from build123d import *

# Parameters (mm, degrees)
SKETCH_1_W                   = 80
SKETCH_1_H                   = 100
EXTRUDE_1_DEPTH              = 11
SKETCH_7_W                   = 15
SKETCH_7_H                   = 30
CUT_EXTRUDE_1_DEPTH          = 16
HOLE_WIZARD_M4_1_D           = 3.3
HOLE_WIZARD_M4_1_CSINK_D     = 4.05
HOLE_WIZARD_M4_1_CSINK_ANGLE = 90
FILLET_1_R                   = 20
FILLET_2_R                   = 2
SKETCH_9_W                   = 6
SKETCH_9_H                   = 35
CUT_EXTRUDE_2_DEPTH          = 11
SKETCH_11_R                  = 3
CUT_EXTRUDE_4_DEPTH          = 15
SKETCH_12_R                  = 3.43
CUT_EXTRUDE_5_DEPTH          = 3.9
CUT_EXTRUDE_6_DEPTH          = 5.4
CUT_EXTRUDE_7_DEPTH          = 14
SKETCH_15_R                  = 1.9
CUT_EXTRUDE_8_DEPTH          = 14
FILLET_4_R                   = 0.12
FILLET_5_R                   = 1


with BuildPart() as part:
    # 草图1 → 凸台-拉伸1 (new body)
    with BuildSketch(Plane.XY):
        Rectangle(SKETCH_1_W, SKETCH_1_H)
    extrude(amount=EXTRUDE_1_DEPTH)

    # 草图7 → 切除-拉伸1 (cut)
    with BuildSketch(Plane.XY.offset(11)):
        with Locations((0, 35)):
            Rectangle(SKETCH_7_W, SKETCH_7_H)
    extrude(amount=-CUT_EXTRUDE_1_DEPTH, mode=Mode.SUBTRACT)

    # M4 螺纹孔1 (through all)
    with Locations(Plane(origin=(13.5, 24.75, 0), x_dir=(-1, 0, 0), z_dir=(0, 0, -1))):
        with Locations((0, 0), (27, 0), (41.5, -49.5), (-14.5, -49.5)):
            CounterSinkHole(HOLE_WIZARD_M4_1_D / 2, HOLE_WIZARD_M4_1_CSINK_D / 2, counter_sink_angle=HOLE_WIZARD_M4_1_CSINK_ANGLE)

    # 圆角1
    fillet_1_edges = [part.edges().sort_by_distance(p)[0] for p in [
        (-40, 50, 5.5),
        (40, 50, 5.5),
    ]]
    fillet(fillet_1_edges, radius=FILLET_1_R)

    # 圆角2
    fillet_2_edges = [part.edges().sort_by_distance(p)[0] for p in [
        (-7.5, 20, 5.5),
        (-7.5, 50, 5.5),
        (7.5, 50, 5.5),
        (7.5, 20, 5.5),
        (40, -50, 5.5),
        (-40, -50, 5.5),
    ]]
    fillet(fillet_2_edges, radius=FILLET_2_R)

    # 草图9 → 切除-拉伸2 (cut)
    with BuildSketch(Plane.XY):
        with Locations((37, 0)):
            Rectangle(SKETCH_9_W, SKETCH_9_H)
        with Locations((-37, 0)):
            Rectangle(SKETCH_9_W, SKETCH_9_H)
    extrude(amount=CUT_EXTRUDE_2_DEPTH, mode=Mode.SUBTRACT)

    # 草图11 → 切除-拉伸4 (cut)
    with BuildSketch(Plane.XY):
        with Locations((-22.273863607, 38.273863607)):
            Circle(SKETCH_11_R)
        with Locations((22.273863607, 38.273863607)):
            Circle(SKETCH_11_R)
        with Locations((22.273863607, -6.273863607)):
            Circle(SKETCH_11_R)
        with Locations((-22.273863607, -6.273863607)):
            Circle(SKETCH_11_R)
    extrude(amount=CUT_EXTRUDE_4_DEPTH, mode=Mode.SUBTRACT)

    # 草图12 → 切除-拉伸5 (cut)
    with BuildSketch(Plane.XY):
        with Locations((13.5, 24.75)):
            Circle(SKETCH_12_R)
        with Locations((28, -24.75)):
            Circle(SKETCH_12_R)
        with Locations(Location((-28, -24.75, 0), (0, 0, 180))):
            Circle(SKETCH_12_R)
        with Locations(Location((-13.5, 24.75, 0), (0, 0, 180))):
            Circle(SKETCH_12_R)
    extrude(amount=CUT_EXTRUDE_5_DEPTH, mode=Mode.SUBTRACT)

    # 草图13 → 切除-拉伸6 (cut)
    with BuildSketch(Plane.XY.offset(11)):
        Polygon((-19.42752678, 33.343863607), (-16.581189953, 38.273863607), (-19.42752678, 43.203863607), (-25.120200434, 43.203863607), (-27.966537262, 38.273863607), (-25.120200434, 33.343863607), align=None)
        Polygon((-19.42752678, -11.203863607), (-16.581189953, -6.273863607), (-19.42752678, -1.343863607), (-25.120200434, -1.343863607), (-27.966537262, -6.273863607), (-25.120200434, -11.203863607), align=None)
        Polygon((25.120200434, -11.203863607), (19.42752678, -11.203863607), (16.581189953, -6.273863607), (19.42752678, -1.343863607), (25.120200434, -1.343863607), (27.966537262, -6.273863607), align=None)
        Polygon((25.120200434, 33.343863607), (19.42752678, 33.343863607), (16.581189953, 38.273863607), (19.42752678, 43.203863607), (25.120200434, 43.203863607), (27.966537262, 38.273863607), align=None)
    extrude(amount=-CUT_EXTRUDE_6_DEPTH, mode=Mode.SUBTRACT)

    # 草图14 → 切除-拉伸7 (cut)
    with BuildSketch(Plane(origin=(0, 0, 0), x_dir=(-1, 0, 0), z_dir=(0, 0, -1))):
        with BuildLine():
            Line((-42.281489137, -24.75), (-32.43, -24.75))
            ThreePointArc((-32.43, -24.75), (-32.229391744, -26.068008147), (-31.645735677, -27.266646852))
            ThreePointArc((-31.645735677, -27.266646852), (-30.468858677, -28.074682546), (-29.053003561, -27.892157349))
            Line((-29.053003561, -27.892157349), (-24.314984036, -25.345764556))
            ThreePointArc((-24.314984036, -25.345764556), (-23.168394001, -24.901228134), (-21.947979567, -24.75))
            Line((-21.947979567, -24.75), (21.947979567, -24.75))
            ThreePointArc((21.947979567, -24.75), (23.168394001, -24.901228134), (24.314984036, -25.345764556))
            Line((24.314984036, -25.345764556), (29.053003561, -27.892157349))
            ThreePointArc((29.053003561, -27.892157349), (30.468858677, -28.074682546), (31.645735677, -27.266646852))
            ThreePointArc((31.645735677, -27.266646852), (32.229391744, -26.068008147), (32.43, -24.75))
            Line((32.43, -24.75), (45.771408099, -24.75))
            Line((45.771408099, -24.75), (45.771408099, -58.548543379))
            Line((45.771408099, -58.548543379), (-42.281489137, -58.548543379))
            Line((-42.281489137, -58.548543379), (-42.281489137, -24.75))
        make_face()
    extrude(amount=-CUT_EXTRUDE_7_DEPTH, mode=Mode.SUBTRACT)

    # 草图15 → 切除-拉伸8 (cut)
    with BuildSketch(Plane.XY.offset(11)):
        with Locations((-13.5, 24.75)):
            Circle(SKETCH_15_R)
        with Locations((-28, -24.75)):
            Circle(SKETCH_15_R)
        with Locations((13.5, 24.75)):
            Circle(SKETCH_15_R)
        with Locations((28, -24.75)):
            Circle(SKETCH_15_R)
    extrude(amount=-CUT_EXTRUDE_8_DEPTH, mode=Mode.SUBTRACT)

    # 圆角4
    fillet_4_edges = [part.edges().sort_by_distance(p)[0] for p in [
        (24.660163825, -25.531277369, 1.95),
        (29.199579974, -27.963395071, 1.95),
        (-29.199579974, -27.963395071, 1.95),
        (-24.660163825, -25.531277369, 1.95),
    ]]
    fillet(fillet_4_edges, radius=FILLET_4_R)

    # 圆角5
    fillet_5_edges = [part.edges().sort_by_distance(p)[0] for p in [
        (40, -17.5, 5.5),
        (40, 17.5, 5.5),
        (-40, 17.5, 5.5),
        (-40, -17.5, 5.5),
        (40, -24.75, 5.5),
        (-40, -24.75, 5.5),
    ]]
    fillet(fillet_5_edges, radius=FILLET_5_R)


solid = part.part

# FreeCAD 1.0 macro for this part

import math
import FreeCAD as App
import Part
import Sketcher
Q = App.Units.Quantity


def edges_at(feature, points):
    """Names of the edges that pass closest to the given points."""
    edges = feature.Shape.Edges
    near = lambda p: min(range(len(edges)), key=lambda i: edges[i].distToShape(Part.Vertex(*p))[0])
    return sorted({f"Edge{near(p) + 1}" for p in points})

doc = App.newDocument("Part")
body = doc.addObject("PartDesign::Body", "Body")

sketch1 = doc.addObject("Sketcher::SketchObject", "Sketch")
body.addObject(sketch1)
sketch1.AttachmentSupport = (doc.XY_Plane, [""])
sketch1.MapMode = "FlatFace"
sketch1.addGeometry(Part.LineSegment(App.Vector(-40, 50, 0), App.Vector(-40, -50, 0)), False)
sketch1.addGeometry(Part.LineSegment(App.Vector(-40, -50, 0), App.Vector(40, -50, 0)), False)
sketch1.addGeometry(Part.LineSegment(App.Vector(40, -50, 0), App.Vector(40, 50, 0)), False)
sketch1.addGeometry(Part.LineSegment(App.Vector(40, 50, 0), App.Vector(-40, 50, 0)), False)
sketch1.addConstraint(Sketcher.Constraint("Coincident", 0, 2, 1, 1))
sketch1.addConstraint(Sketcher.Constraint("Coincident", 1, 2, 2, 1))
sketch1.addConstraint(Sketcher.Constraint("Coincident", 2, 2, 3, 1))
sketch1.addConstraint(Sketcher.Constraint("Coincident", 3, 2, 0, 1))
sketch1.addConstraint(Sketcher.Constraint("Vertical", 0))
sketch1.addConstraint(Sketcher.Constraint("Horizontal", 1))
sketch1.addConstraint(Sketcher.Constraint("Vertical", 2))
sketch1.addConstraint(Sketcher.Constraint("Horizontal", 3))
sketch1.addConstraint(Sketcher.Constraint("Symmetric", 0, 2, 2, 2, -1, 1))
sketch1.addConstraint(Sketcher.Constraint("DistanceX", 1, 1, 1, 2, 80.0))
sketch1.addConstraint(Sketcher.Constraint("DistanceY", 0, 2, 0, 1, 100.0))
pad1 = doc.addObject("PartDesign::Pad", "Pad")
body.addObject(pad1)
pad1.Profile = sketch1
pad1.Length = 11

sketch2 = doc.addObject("Sketcher::SketchObject", "Sketch001")
body.addObject(sketch2)
sketch2.AttachmentSupport = (doc.XY_Plane, [""])
sketch2.MapMode = "FlatFace"
sketch2.AttachmentOffset = App.Placement(App.Vector(0, 0, 11), App.Rotation())
sketch2.addGeometry(Part.LineSegment(App.Vector(-8, 50, 0), App.Vector(-8, 20, 0)), False)
sketch2.addGeometry(Part.LineSegment(App.Vector(-8, 20, 0), App.Vector(8, 20, 0)), False)
sketch2.addGeometry(Part.LineSegment(App.Vector(8, 20, 0), App.Vector(8, 50, 0)), False)
sketch2.addGeometry(Part.LineSegment(App.Vector(8, 50, 0), App.Vector(-8, 50, 0)), False)
sketch2.addConstraint(Sketcher.Constraint("Coincident", 0, 2, 1, 1))
sketch2.addConstraint(Sketcher.Constraint("Coincident", 1, 2, 2, 1))
sketch2.addConstraint(Sketcher.Constraint("Coincident", 2, 2, 3, 1))
sketch2.addConstraint(Sketcher.Constraint("Coincident", 3, 2, 0, 1))
sketch2.addConstraint(Sketcher.Constraint("Vertical", 0))
sketch2.addConstraint(Sketcher.Constraint("Horizontal", 1))
sketch2.addConstraint(Sketcher.Constraint("Vertical", 2))
sketch2.addConstraint(Sketcher.Constraint("Horizontal", 3))
sketch2.addConstraint(Sketcher.Constraint("DistanceX", 1, 1, 1, 2, 15.0))
sketch2.addConstraint(Sketcher.Constraint("DistanceY", 0, 2, 0, 1, 30.0))
sketch2.addConstraint(Sketcher.Constraint("DistanceY", -1, 1, 0, 2, 20.0))
sketch2.addConstraint(Sketcher.Constraint("DistanceX", 0, 2, -1, 1, 7.5))
pocket1 = doc.addObject("PartDesign::Pocket", "Pocket")
body.addObject(pocket1)
pocket1.Profile = sketch2
pocket1.Length = 16

sketch3 = doc.addObject("Sketcher::SketchObject", "Sketch002")
body.addObject(sketch3)
sketch3.AttachmentSupport = (doc.XY_Plane, [""])
sketch3.MapMode = "FlatFace"
sketch3.addGeometry(Part.Circle(App.Vector(13.5, 24.8, 0), App.Vector(0, 0, 1), 1.6), False)
sketch3.addGeometry(Part.Circle(App.Vector(-13.5, 24.8, 0), App.Vector(0, 0, 1), 1.6), False)
sketch3.addGeometry(Part.Circle(App.Vector(-28, -24.8, 0), App.Vector(0, 0, 1), 1.6), False)
sketch3.addGeometry(Part.Circle(App.Vector(28, -24.8, 0), App.Vector(0, 0, 1), 1.6), False)
sketch3.addConstraint(Sketcher.Constraint("Equal", 0, 1))
sketch3.addConstraint(Sketcher.Constraint("Equal", 1, 2))
sketch3.addConstraint(Sketcher.Constraint("Equal", 2, 3))
sketch3.addConstraint(Sketcher.Constraint("Symmetric", 0, 3, 1, 3, -2))
sketch3.addConstraint(Sketcher.Constraint("Symmetric", 2, 3, 3, 3, -2))
sketch3.addConstraint(Sketcher.Constraint("Diameter", 0, 3.3))
sketch3.addConstraint(Sketcher.Constraint("DistanceX", 2, 3, -1, 1, 28.0))
sketch3.addConstraint(Sketcher.Constraint("DistanceX", 1, 3, 0, 3, 27.0))
sketch3.addConstraint(Sketcher.Constraint("DistanceY", 2, 3, 1, 3, 49.5))
sketch3.addConstraint(Sketcher.Constraint("DistanceY", -1, 1, 0, 3, 24.75))
doc.recompute()
hole = doc.addObject("PartDesign::Hole", "Hole")
body.addObject(hole)
hole.Profile = sketch3
hole.ThreadType = "None"
hole.Diameter = 3.3
hole.DepthType = "ThroughAll"
hole.HoleCutType = "Countersink"
hole.HoleCutDiameter = 4.05
hole.HoleCutCountersinkAngle = 90
hole.Reversed = True
doc.recompute()

fillet = doc.addObject("PartDesign::Fillet", "Fillet")
body.addObject(fillet)
fillet.Base = (hole, edges_at(hole, [(-40, 50, 5.5), (40, 50, 5.5)]))
fillet.Radius = 20
doc.recompute()

fillet2 = doc.addObject("PartDesign::Fillet", "Fillet001")
body.addObject(fillet2)
fillet2.Base = (fillet, edges_at(fillet, [
    (-7.5, 20, 5.5),
    (-7.5, 50, 5.5),
    (7.5, 50, 5.5),
    (7.5, 20, 5.5),
    (40, -50, 5.5),
    (-40, -50, 5.5),
]))
fillet2.Radius = 2

sketch4 = doc.addObject("Sketcher::SketchObject", "Sketch003")
body.addObject(sketch4)
sketch4.AttachmentSupport = (doc.XY_Plane, [""])
sketch4.MapMode = "FlatFace"
sketch4.addGeometry(Part.LineSegment(App.Vector(34, 18, 0), App.Vector(34, -18, 0)), False)
sketch4.addGeometry(Part.LineSegment(App.Vector(34, -18, 0), App.Vector(40, -18, 0)), False)
sketch4.addGeometry(Part.LineSegment(App.Vector(40, -18, 0), App.Vector(40, 18, 0)), False)
sketch4.addGeometry(Part.LineSegment(App.Vector(40, 18, 0), App.Vector(34, 18, 0)), False)
sketch4.addGeometry(Part.LineSegment(App.Vector(-40, 18, 0), App.Vector(-40, -18, 0)), False)
sketch4.addGeometry(Part.LineSegment(App.Vector(-40, -18, 0), App.Vector(-34, -18, 0)), False)
sketch4.addGeometry(Part.LineSegment(App.Vector(-34, -18, 0), App.Vector(-34, 18, 0)), False)
sketch4.addGeometry(Part.LineSegment(App.Vector(-34, 18, 0), App.Vector(-40, 18, 0)), False)
sketch4.addConstraint(Sketcher.Constraint("Coincident", 0, 2, 1, 1))
sketch4.addConstraint(Sketcher.Constraint("Coincident", 1, 2, 2, 1))
sketch4.addConstraint(Sketcher.Constraint("Coincident", 2, 2, 3, 1))
sketch4.addConstraint(Sketcher.Constraint("Coincident", 3, 2, 0, 1))
sketch4.addConstraint(Sketcher.Constraint("Coincident", 4, 2, 5, 1))
sketch4.addConstraint(Sketcher.Constraint("Coincident", 5, 2, 6, 1))
sketch4.addConstraint(Sketcher.Constraint("Coincident", 6, 2, 7, 1))
sketch4.addConstraint(Sketcher.Constraint("Coincident", 7, 2, 4, 1))
sketch4.addConstraint(Sketcher.Constraint("Vertical", 0))
sketch4.addConstraint(Sketcher.Constraint("Horizontal", 1))
sketch4.addConstraint(Sketcher.Constraint("Vertical", 2))
sketch4.addConstraint(Sketcher.Constraint("Horizontal", 3))
sketch4.addConstraint(Sketcher.Constraint("Vertical", 4))
sketch4.addConstraint(Sketcher.Constraint("Horizontal", 5))
sketch4.addConstraint(Sketcher.Constraint("Vertical", 6))
sketch4.addConstraint(Sketcher.Constraint("Horizontal", 7))
sketch4.addConstraint(Sketcher.Constraint("Symmetric", 2, 2, 4, 2, -1, 1))
sketch4.addConstraint(Sketcher.Constraint("Symmetric", 0, 2, 6, 2, -1, 1))
sketch4.addConstraint(Sketcher.Constraint("Horizontal", 1, 2, 4, 2))
sketch4.addConstraint(Sketcher.Constraint("DistanceX", 1, 1, 1, 2, 6.0))
sketch4.addConstraint(Sketcher.Constraint("DistanceY", 0, 2, 0, 1, 35.0))
sketch4.addConstraint(Sketcher.Constraint("DistanceX", -1, 1, 0, 2, 34.0))
pocket2 = doc.addObject("PartDesign::Pocket", "Pocket001")
body.addObject(pocket2)
pocket2.Profile = sketch4
pocket2.Length = 11
pocket2.Reversed = True

sketch5 = doc.addObject("Sketcher::SketchObject", "Sketch004")
body.addObject(sketch5)
sketch5.AttachmentSupport = (doc.XY_Plane, [""])
sketch5.MapMode = "FlatFace"
sketch5.addGeometry(Part.Circle(App.Vector(-22.3, 38.3, 0), App.Vector(0, 0, 1), 3), False)
sketch5.addGeometry(Part.Circle(App.Vector(22.3, 38.3, 0), App.Vector(0, 0, 1), 3), False)
sketch5.addGeometry(Part.Circle(App.Vector(22.3, -6.3, 0), App.Vector(0, 0, 1), 3), False)
sketch5.addGeometry(Part.Circle(App.Vector(-22.3, -6.3, 0), App.Vector(0, 0, 1), 3), False)
sketch5.addConstraint(Sketcher.Constraint("Equal", 0, 1))
sketch5.addConstraint(Sketcher.Constraint("Equal", 1, 2))
sketch5.addConstraint(Sketcher.Constraint("Equal", 2, 3))
sketch5.addConstraint(Sketcher.Constraint("Symmetric", 0, 3, 1, 3, -2))
sketch5.addConstraint(Sketcher.Constraint("Symmetric", 2, 3, 3, 3, -2))
sketch5.addConstraint(Sketcher.Constraint("Vertical", 1, 3, 2, 3))
sketch5.addConstraint(Sketcher.Constraint("Diameter", 0, 6.0))
sketch5.addConstraint(Sketcher.Constraint("DistanceX", 0, 3, -1, 1, 22.273864))
sketch5.addConstraint(Sketcher.Constraint("DistanceY", -1, 1, 0, 3, 38.273864))
sketch5.addConstraint(Sketcher.Constraint("DistanceY", 2, 3, -1, 1, 6.273864))
pocket3 = doc.addObject("PartDesign::Pocket", "Pocket002")
body.addObject(pocket3)
pocket3.Profile = sketch5
pocket3.Length = 15
pocket3.Reversed = True

sketch6 = doc.addObject("Sketcher::SketchObject", "Sketch005")
body.addObject(sketch6)
sketch6.AttachmentSupport = (doc.XY_Plane, [""])
sketch6.MapMode = "FlatFace"
sketch6.addGeometry(Part.Circle(App.Vector(13.5, 24.8, 0), App.Vector(0, 0, 1), 3.4), False)
sketch6.addGeometry(Part.Circle(App.Vector(28, -24.8, 0), App.Vector(0, 0, 1), 3.4), False)
sketch6.addGeometry(Part.Circle(App.Vector(-28, -24.8, 0), App.Vector(0, 0, 1), 3.4), False)
sketch6.addGeometry(Part.Circle(App.Vector(-13.5, 24.8, 0), App.Vector(0, 0, 1), 3.4), False)
sketch6.addConstraint(Sketcher.Constraint("Equal", 0, 1))
sketch6.addConstraint(Sketcher.Constraint("Equal", 1, 2))
sketch6.addConstraint(Sketcher.Constraint("Equal", 2, 3))
sketch6.addConstraint(Sketcher.Constraint("Symmetric", 1, 3, 2, 3, -2))
sketch6.addConstraint(Sketcher.Constraint("Symmetric", 0, 3, 3, 3, -2))
sketch6.addConstraint(Sketcher.Constraint("Diameter", 0, 6.86))
sketch6.addConstraint(Sketcher.Constraint("DistanceX", -1, 1, 1, 3, 28.0))
sketch6.addConstraint(Sketcher.Constraint("DistanceX", 3, 3, 0, 3, 27.0))
sketch6.addConstraint(Sketcher.Constraint("DistanceY", 1, 3, 0, 3, 49.5))
sketch6.addConstraint(Sketcher.Constraint("DistanceY", -1, 1, 0, 3, 24.75))
pocket4 = doc.addObject("PartDesign::Pocket", "Pocket003")
body.addObject(pocket4)
pocket4.Profile = sketch6
pocket4.Length = 3.9
pocket4.Reversed = True

sketch7 = doc.addObject("Sketcher::SketchObject", "Sketch006")
body.addObject(sketch7)
sketch7.AttachmentSupport = (doc.XY_Plane, [""])
sketch7.MapMode = "FlatFace"
sketch7.AttachmentOffset = App.Placement(App.Vector(0, 0, 11), App.Rotation())
sketch7.addGeometry(Part.LineSegment(App.Vector(-19, 33, 0), App.Vector(-17, 38, 0)), False)
sketch7.addGeometry(Part.LineSegment(App.Vector(-17, 38, 0), App.Vector(-19, 43, 0)), False)
sketch7.addGeometry(Part.LineSegment(App.Vector(-19, 43, 0), App.Vector(-25, 43, 0)), False)
sketch7.addGeometry(Part.LineSegment(App.Vector(-25, 43, 0), App.Vector(-28, 38, 0)), False)
sketch7.addGeometry(Part.LineSegment(App.Vector(-28, 38, 0), App.Vector(-25, 33, 0)), False)
sketch7.addGeometry(Part.LineSegment(App.Vector(-25, 33, 0), App.Vector(-19, 33, 0)), False)
sketch7.addGeometry(Part.LineSegment(App.Vector(-19, -11, 0), App.Vector(-17, -6, 0)), False)
sketch7.addGeometry(Part.LineSegment(App.Vector(-17, -6, 0), App.Vector(-19, -1, 0)), False)
sketch7.addGeometry(Part.LineSegment(App.Vector(-19, -1, 0), App.Vector(-25, -1, 0)), False)
sketch7.addGeometry(Part.LineSegment(App.Vector(-25, -1, 0), App.Vector(-28, -6, 0)), False)
sketch7.addGeometry(Part.LineSegment(App.Vector(-28, -6, 0), App.Vector(-25, -11, 0)), False)
sketch7.addGeometry(Part.LineSegment(App.Vector(-25, -11, 0), App.Vector(-19, -11, 0)), False)
sketch7.addGeometry(Part.LineSegment(App.Vector(19, -11, 0), App.Vector(25, -11, 0)), False)
sketch7.addGeometry(Part.LineSegment(App.Vector(25, -11, 0), App.Vector(28, -6, 0)), False)
sketch7.addGeometry(Part.LineSegment(App.Vector(28, -6, 0), App.Vector(25, -1, 0)), False)
sketch7.addGeometry(Part.LineSegment(App.Vector(25, -1, 0), App.Vector(19, -1, 0)), False)
sketch7.addGeometry(Part.LineSegment(App.Vector(19, -1, 0), App.Vector(17, -6, 0)), False)
sketch7.addGeometry(Part.LineSegment(App.Vector(17, -6, 0), App.Vector(19, -11, 0)), False)
sketch7.addGeometry(Part.LineSegment(App.Vector(19, 33, 0), App.Vector(25, 33, 0)), False)
sketch7.addGeometry(Part.LineSegment(App.Vector(25, 33, 0), App.Vector(28, 38, 0)), False)
sketch7.addGeometry(Part.LineSegment(App.Vector(28, 38, 0), App.Vector(25, 43, 0)), False)
sketch7.addGeometry(Part.LineSegment(App.Vector(25, 43, 0), App.Vector(19, 43, 0)), False)
sketch7.addGeometry(Part.LineSegment(App.Vector(19, 43, 0), App.Vector(17, 38, 0)), False)
sketch7.addGeometry(Part.LineSegment(App.Vector(17, 38, 0), App.Vector(19, 33, 0)), False)
sketch7.addConstraint(Sketcher.Constraint("Coincident", 0, 2, 1, 1))
sketch7.addConstraint(Sketcher.Constraint("Coincident", 1, 2, 2, 1))
sketch7.addConstraint(Sketcher.Constraint("Coincident", 2, 2, 3, 1))
sketch7.addConstraint(Sketcher.Constraint("Coincident", 3, 2, 4, 1))
sketch7.addConstraint(Sketcher.Constraint("Coincident", 4, 2, 5, 1))
sketch7.addConstraint(Sketcher.Constraint("Coincident", 5, 2, 0, 1))
sketch7.addConstraint(Sketcher.Constraint("Coincident", 6, 2, 7, 1))
sketch7.addConstraint(Sketcher.Constraint("Coincident", 7, 2, 8, 1))
sketch7.addConstraint(Sketcher.Constraint("Coincident", 8, 2, 9, 1))
sketch7.addConstraint(Sketcher.Constraint("Coincident", 9, 2, 10, 1))
sketch7.addConstraint(Sketcher.Constraint("Coincident", 10, 2, 11, 1))
sketch7.addConstraint(Sketcher.Constraint("Coincident", 11, 2, 6, 1))
sketch7.addConstraint(Sketcher.Constraint("Coincident", 12, 2, 13, 1))
sketch7.addConstraint(Sketcher.Constraint("Coincident", 13, 2, 14, 1))
sketch7.addConstraint(Sketcher.Constraint("Coincident", 14, 2, 15, 1))
sketch7.addConstraint(Sketcher.Constraint("Coincident", 15, 2, 16, 1))
sketch7.addConstraint(Sketcher.Constraint("Coincident", 16, 2, 17, 1))
sketch7.addConstraint(Sketcher.Constraint("Coincident", 17, 2, 12, 1))
sketch7.addConstraint(Sketcher.Constraint("Coincident", 18, 2, 19, 1))
sketch7.addConstraint(Sketcher.Constraint("Coincident", 19, 2, 20, 1))
sketch7.addConstraint(Sketcher.Constraint("Coincident", 20, 2, 21, 1))
sketch7.addConstraint(Sketcher.Constraint("Coincident", 21, 2, 22, 1))
sketch7.addConstraint(Sketcher.Constraint("Coincident", 22, 2, 23, 1))
sketch7.addConstraint(Sketcher.Constraint("Coincident", 23, 2, 18, 1))
sketch7.addConstraint(Sketcher.Constraint("Horizontal", 2))
sketch7.addConstraint(Sketcher.Constraint("Horizontal", 5))
sketch7.addConstraint(Sketcher.Constraint("Horizontal", 8))
sketch7.addConstraint(Sketcher.Constraint("Horizontal", 11))
sketch7.addConstraint(Sketcher.Constraint("Horizontal", 12))
sketch7.addConstraint(Sketcher.Constraint("Horizontal", 15))
sketch7.addConstraint(Sketcher.Constraint("Horizontal", 18))
sketch7.addConstraint(Sketcher.Constraint("Horizontal", 21))
sketch7.addConstraint(Sketcher.Constraint("Symmetric", 10, 2, 12, 2, -2))
sketch7.addConstraint(Sketcher.Constraint("Symmetric", 9, 2, 13, 2, -2))
sketch7.addConstraint(Sketcher.Constraint("Symmetric", 8, 2, 14, 2, -2))
sketch7.addConstraint(Sketcher.Constraint("Symmetric", 6, 2, 16, 2, -2))
sketch7.addConstraint(Sketcher.Constraint("Symmetric", 4, 2, 18, 2, -2))
sketch7.addConstraint(Sketcher.Constraint("Symmetric", 3, 2, 19, 2, -2))
sketch7.addConstraint(Sketcher.Constraint("Symmetric", 2, 2, 20, 2, -2))
sketch7.addConstraint(Sketcher.Constraint("Symmetric", 0, 2, 22, 2, -2))
sketch7.addConstraint(Sketcher.Constraint("Parallel", 0, 3))
sketch7.addConstraint(Sketcher.Constraint("Parallel", 1, 4))
sketch7.addConstraint(Sketcher.Constraint("Parallel", 3, 6))
sketch7.addConstraint(Sketcher.Constraint("Parallel", 4, 7))
sketch7.addConstraint(Sketcher.Constraint("Parallel", 6, 9))
sketch7.addConstraint(Sketcher.Constraint("Parallel", 7, 10))
sketch7.addConstraint(Sketcher.Constraint("Parallel", 9, 13))
sketch7.addConstraint(Sketcher.Constraint("Parallel", 13, 16))
sketch7.addConstraint(Sketcher.Constraint("Parallel", 14, 17))
sketch7.addConstraint(Sketcher.Constraint("Parallel", 19, 22))
sketch7.addConstraint(Sketcher.Constraint("Parallel", 20, 23))
sketch7.addConstraint(Sketcher.Constraint("Horizontal", 0, 2, 3, 2))
sketch7.addConstraint(Sketcher.Constraint("Horizontal", 6, 2, 9, 2))
sketch7.addConstraint(Sketcher.Constraint("Vertical", 2, 2, 4, 2))
sketch7.addConstraint(Sketcher.Constraint("Vertical", 0, 2, 6, 2))
sketch7.addConstraint(Sketcher.Constraint("Vertical", 5, 2, 7, 2))
sketch7.addConstraint(Sketcher.Constraint("Vertical", 4, 2, 8, 2))
sketch7.addConstraint(Sketcher.Constraint("Vertical", 8, 2, 10, 2))
sketch7.addConstraint(Sketcher.Constraint("Angle", 0, Q("60 deg")))
sketch7.addConstraint(Sketcher.Constraint("DistanceY", 0, 2, 1, 2, 4.93))
sketch7.addConstraint(Sketcher.Constraint("DistanceX", 2, 2, -1, 1, 25.1202))
sketch7.addConstraint(Sketcher.Constraint("DistanceX", 2, 2, 2, 1, 5.692674))
sketch7.addConstraint(Sketcher.Constraint("DistanceY", -1, 1, 0, 2, 38.273864))
sketch7.addConstraint(Sketcher.Constraint("DistanceY", 6, 2, -1, 1, 6.273864))
pocket5 = doc.addObject("PartDesign::Pocket", "Pocket004")
body.addObject(pocket5)
pocket5.Profile = sketch7
pocket5.Length = 5.4

sketch8 = doc.addObject("Sketcher::SketchObject", "Sketch007")
body.addObject(sketch8)
sketch8.AttachmentSupport = (doc.XY_Plane, [""])
sketch8.MapMode = "FlatFace"
sketch8.addGeometry(Part.LineSegment(App.Vector(32.4, -24.8, 0), App.Vector(42.3, -24.8, 0)), False)
sketch8.addGeometry(Part.LineSegment(App.Vector(42.3, -24.8, 0), App.Vector(42.3, -58.5, 0)), False)
sketch8.addGeometry(Part.LineSegment(App.Vector(42.3, -58.5, 0), App.Vector(-45.8, -58.5, 0)), False)
sketch8.addGeometry(Part.LineSegment(App.Vector(-45.8, -58.5, 0), App.Vector(-45.8, -24.8, 0)), False)
sketch8.addGeometry(Part.LineSegment(App.Vector(-45.8, -24.8, 0), App.Vector(-32.4, -24.8, 0)), False)
sketch8.addGeometry(Part.ArcOfCircle(Part.Circle(App.Vector(-28, -24.7, 0), App.Vector(0, 0, 1), 4.4), math.radians(-180), math.radians(-145)), False)
sketch8.addGeometry(Part.ArcOfCircle(Part.Circle(App.Vector(-30, -26.1, 0), App.Vector(0, 0, 1), 2), math.radians(-145), math.radians(-62)), False)
sketch8.addGeometry(Part.LineSegment(App.Vector(-29.1, -27.9, 0), App.Vector(-24.3, -25.3, 0)), False)
sketch8.addGeometry(Part.ArcOfCircle(Part.Circle(App.Vector(-21.9, -29.8, 0), App.Vector(0, 0, 1), 5), math.radians(90), math.radians(118)), False)
sketch8.addGeometry(Part.LineSegment(App.Vector(-21.9, -24.8, 0), App.Vector(21.9, -24.8, 0)), False)
sketch8.addGeometry(Part.ArcOfCircle(Part.Circle(App.Vector(21.9, -29.8, 0), App.Vector(0, 0, 1), 5), math.radians(62), math.radians(90)), False)
sketch8.addGeometry(Part.LineSegment(App.Vector(24.3, -25.3, 0), App.Vector(29.1, -27.9, 0)), False)
sketch8.addGeometry(Part.ArcOfCircle(Part.Circle(App.Vector(30, -26.1, 0), App.Vector(0, 0, 1), 2), math.radians(-118), math.radians(-35)), False)
sketch8.addGeometry(Part.ArcOfCircle(Part.Circle(App.Vector(28, -24.7, 0), App.Vector(0, 0, 1), 4.4), math.radians(-35), math.radians(0)), False)
sketch8.addConstraint(Sketcher.Constraint("Coincident", 0, 2, 1, 1))
sketch8.addConstraint(Sketcher.Constraint("Coincident", 1, 2, 2, 1))
sketch8.addConstraint(Sketcher.Constraint("Coincident", 2, 2, 3, 1))
sketch8.addConstraint(Sketcher.Constraint("Coincident", 3, 2, 4, 1))
sketch8.addConstraint(Sketcher.Constraint("Coincident", 4, 2, 5, 1))
sketch8.addConstraint(Sketcher.Constraint("Tangent", 5, 2, 6, 1))
sketch8.addConstraint(Sketcher.Constraint("Tangent", 6, 2, 7, 1))
sketch8.addConstraint(Sketcher.Constraint("Tangent", 7, 2, 8, 2))
sketch8.addConstraint(Sketcher.Constraint("Tangent", 8, 1, 9, 1))
sketch8.addConstraint(Sketcher.Constraint("Tangent", 9, 2, 10, 2))
sketch8.addConstraint(Sketcher.Constraint("Tangent", 10, 1, 11, 1))
sketch8.addConstraint(Sketcher.Constraint("Tangent", 11, 2, 12, 1))
sketch8.addConstraint(Sketcher.Constraint("Tangent", 12, 2, 13, 1))
sketch8.addConstraint(Sketcher.Constraint("Coincident", 13, 2, 0, 1))
sketch8.addConstraint(Sketcher.Constraint("Horizontal", 0))
sketch8.addConstraint(Sketcher.Constraint("Vertical", 1))
sketch8.addConstraint(Sketcher.Constraint("Horizontal", 2))
sketch8.addConstraint(Sketcher.Constraint("Vertical", 3))
sketch8.addConstraint(Sketcher.Constraint("Horizontal", 4))
sketch8.addConstraint(Sketcher.Constraint("Horizontal", 9))
sketch8.addConstraint(Sketcher.Constraint("Equal", 8, 10))
sketch8.addConstraint(Sketcher.Constraint("Equal", 6, 12))
sketch8.addConstraint(Sketcher.Constraint("Equal", 5, 13))
sketch8.addConstraint(Sketcher.Constraint("Symmetric", 6, 3, 12, 3, -2))
sketch8.addConstraint(Sketcher.Constraint("Symmetric", 4, 2, 13, 2, -2))
sketch8.addConstraint(Sketcher.Constraint("Horizontal", 13, 3, 0, 2))
sketch8.addConstraint(Sketcher.Constraint("Horizontal", 4, 2, 8, 1))
sketch8.addConstraint(Sketcher.Constraint("Horizontal", 7, 2, 10, 1))
sketch8.addConstraint(Sketcher.Constraint("Radius", 6, 2.0))
sketch8.addConstraint(Sketcher.Constraint("Radius", 8, 5.0))
sketch8.addConstraint(Sketcher.Constraint("Radius", 5, 4.43))
sketch8.addConstraint(Sketcher.Constraint("DistanceX", 5, 3, -1, 1, 28.0))
sketch8.addConstraint(Sketcher.Constraint("DistanceY", 5, 3, -1, 1, 24.75))
sketch8.addConstraint(Sketcher.Constraint("DistanceX", 0, 1, 0, 2, 9.851489))
sketch8.addConstraint(Sketcher.Constraint("DistanceX", 4, 1, 4, 2, 13.341408))
sketch8.addConstraint(Sketcher.Constraint("DistanceX", 9, 1, 9, 2, 43.895959))
sketch8.addConstraint(Sketcher.Constraint("DistanceX", 6, 3, 6, 2, 0.946802))
sketch8.addConstraint(Sketcher.Constraint("DistanceY", 1, 2, 1, 1, 33.798543))
pocket6 = doc.addObject("PartDesign::Pocket", "Pocket005")
body.addObject(pocket6)
pocket6.Profile = sketch8
pocket6.Length = 14
pocket6.Reversed = True

sketch9 = doc.addObject("Sketcher::SketchObject", "Sketch008")
body.addObject(sketch9)
sketch9.AttachmentSupport = (doc.XY_Plane, [""])
sketch9.MapMode = "FlatFace"
sketch9.AttachmentOffset = App.Placement(App.Vector(0, 0, 11), App.Rotation())
sketch9.addGeometry(Part.Circle(App.Vector(-13.5, 24.8, 0), App.Vector(0, 0, 1), 1.9), False)
sketch9.addGeometry(Part.Circle(App.Vector(-28, -24.8, 0), App.Vector(0, 0, 1), 1.9), False)
sketch9.addGeometry(Part.Circle(App.Vector(13.5, 24.8, 0), App.Vector(0, 0, 1), 1.9), False)
sketch9.addGeometry(Part.Circle(App.Vector(28, -24.8, 0), App.Vector(0, 0, 1), 1.9), False)
sketch9.addConstraint(Sketcher.Constraint("Equal", 0, 1))
sketch9.addConstraint(Sketcher.Constraint("Equal", 1, 2))
sketch9.addConstraint(Sketcher.Constraint("Equal", 2, 3))
sketch9.addConstraint(Sketcher.Constraint("Symmetric", 0, 3, 2, 3, -2))
sketch9.addConstraint(Sketcher.Constraint("Symmetric", 1, 3, 3, 3, -2))
sketch9.addConstraint(Sketcher.Constraint("Diameter", 0, 3.8))
sketch9.addConstraint(Sketcher.Constraint("DistanceX", 1, 3, -1, 1, 28.0))
sketch9.addConstraint(Sketcher.Constraint("DistanceX", 0, 3, 2, 3, 27.0))
sketch9.addConstraint(Sketcher.Constraint("DistanceY", 1, 3, 0, 3, 49.5))
sketch9.addConstraint(Sketcher.Constraint("DistanceY", -1, 1, 0, 3, 24.75))
pocket7 = doc.addObject("PartDesign::Pocket", "Pocket006")
body.addObject(pocket7)
pocket7.Profile = sketch9
pocket7.Length = 14
doc.recompute()

fillet3 = doc.addObject("PartDesign::Fillet", "Fillet002")
body.addObject(fillet3)
fillet3.Base = (pocket7, edges_at(pocket7, [
    (24.66, -25.531, 1.95),
    (29.2, -27.963, 1.95),
    (-29.2, -27.963, 1.95),
    (-24.66, -25.531, 1.95),
]))
fillet3.Radius = 0.12
doc.recompute()

fillet4 = doc.addObject("PartDesign::Fillet", "Fillet003")
body.addObject(fillet4)
fillet4.Base = (fillet3, edges_at(fillet3, [
    (40, -17.5, 5.5),
    (40, 17.5, 5.5),
    (-40, 17.5, 5.5),
    (-40, -17.5, 5.5),
    (40, -24.75, 5.5),
    (-40, -24.75, 5.5),
]))
fillet4.Radius = 1

doc.recompute()
